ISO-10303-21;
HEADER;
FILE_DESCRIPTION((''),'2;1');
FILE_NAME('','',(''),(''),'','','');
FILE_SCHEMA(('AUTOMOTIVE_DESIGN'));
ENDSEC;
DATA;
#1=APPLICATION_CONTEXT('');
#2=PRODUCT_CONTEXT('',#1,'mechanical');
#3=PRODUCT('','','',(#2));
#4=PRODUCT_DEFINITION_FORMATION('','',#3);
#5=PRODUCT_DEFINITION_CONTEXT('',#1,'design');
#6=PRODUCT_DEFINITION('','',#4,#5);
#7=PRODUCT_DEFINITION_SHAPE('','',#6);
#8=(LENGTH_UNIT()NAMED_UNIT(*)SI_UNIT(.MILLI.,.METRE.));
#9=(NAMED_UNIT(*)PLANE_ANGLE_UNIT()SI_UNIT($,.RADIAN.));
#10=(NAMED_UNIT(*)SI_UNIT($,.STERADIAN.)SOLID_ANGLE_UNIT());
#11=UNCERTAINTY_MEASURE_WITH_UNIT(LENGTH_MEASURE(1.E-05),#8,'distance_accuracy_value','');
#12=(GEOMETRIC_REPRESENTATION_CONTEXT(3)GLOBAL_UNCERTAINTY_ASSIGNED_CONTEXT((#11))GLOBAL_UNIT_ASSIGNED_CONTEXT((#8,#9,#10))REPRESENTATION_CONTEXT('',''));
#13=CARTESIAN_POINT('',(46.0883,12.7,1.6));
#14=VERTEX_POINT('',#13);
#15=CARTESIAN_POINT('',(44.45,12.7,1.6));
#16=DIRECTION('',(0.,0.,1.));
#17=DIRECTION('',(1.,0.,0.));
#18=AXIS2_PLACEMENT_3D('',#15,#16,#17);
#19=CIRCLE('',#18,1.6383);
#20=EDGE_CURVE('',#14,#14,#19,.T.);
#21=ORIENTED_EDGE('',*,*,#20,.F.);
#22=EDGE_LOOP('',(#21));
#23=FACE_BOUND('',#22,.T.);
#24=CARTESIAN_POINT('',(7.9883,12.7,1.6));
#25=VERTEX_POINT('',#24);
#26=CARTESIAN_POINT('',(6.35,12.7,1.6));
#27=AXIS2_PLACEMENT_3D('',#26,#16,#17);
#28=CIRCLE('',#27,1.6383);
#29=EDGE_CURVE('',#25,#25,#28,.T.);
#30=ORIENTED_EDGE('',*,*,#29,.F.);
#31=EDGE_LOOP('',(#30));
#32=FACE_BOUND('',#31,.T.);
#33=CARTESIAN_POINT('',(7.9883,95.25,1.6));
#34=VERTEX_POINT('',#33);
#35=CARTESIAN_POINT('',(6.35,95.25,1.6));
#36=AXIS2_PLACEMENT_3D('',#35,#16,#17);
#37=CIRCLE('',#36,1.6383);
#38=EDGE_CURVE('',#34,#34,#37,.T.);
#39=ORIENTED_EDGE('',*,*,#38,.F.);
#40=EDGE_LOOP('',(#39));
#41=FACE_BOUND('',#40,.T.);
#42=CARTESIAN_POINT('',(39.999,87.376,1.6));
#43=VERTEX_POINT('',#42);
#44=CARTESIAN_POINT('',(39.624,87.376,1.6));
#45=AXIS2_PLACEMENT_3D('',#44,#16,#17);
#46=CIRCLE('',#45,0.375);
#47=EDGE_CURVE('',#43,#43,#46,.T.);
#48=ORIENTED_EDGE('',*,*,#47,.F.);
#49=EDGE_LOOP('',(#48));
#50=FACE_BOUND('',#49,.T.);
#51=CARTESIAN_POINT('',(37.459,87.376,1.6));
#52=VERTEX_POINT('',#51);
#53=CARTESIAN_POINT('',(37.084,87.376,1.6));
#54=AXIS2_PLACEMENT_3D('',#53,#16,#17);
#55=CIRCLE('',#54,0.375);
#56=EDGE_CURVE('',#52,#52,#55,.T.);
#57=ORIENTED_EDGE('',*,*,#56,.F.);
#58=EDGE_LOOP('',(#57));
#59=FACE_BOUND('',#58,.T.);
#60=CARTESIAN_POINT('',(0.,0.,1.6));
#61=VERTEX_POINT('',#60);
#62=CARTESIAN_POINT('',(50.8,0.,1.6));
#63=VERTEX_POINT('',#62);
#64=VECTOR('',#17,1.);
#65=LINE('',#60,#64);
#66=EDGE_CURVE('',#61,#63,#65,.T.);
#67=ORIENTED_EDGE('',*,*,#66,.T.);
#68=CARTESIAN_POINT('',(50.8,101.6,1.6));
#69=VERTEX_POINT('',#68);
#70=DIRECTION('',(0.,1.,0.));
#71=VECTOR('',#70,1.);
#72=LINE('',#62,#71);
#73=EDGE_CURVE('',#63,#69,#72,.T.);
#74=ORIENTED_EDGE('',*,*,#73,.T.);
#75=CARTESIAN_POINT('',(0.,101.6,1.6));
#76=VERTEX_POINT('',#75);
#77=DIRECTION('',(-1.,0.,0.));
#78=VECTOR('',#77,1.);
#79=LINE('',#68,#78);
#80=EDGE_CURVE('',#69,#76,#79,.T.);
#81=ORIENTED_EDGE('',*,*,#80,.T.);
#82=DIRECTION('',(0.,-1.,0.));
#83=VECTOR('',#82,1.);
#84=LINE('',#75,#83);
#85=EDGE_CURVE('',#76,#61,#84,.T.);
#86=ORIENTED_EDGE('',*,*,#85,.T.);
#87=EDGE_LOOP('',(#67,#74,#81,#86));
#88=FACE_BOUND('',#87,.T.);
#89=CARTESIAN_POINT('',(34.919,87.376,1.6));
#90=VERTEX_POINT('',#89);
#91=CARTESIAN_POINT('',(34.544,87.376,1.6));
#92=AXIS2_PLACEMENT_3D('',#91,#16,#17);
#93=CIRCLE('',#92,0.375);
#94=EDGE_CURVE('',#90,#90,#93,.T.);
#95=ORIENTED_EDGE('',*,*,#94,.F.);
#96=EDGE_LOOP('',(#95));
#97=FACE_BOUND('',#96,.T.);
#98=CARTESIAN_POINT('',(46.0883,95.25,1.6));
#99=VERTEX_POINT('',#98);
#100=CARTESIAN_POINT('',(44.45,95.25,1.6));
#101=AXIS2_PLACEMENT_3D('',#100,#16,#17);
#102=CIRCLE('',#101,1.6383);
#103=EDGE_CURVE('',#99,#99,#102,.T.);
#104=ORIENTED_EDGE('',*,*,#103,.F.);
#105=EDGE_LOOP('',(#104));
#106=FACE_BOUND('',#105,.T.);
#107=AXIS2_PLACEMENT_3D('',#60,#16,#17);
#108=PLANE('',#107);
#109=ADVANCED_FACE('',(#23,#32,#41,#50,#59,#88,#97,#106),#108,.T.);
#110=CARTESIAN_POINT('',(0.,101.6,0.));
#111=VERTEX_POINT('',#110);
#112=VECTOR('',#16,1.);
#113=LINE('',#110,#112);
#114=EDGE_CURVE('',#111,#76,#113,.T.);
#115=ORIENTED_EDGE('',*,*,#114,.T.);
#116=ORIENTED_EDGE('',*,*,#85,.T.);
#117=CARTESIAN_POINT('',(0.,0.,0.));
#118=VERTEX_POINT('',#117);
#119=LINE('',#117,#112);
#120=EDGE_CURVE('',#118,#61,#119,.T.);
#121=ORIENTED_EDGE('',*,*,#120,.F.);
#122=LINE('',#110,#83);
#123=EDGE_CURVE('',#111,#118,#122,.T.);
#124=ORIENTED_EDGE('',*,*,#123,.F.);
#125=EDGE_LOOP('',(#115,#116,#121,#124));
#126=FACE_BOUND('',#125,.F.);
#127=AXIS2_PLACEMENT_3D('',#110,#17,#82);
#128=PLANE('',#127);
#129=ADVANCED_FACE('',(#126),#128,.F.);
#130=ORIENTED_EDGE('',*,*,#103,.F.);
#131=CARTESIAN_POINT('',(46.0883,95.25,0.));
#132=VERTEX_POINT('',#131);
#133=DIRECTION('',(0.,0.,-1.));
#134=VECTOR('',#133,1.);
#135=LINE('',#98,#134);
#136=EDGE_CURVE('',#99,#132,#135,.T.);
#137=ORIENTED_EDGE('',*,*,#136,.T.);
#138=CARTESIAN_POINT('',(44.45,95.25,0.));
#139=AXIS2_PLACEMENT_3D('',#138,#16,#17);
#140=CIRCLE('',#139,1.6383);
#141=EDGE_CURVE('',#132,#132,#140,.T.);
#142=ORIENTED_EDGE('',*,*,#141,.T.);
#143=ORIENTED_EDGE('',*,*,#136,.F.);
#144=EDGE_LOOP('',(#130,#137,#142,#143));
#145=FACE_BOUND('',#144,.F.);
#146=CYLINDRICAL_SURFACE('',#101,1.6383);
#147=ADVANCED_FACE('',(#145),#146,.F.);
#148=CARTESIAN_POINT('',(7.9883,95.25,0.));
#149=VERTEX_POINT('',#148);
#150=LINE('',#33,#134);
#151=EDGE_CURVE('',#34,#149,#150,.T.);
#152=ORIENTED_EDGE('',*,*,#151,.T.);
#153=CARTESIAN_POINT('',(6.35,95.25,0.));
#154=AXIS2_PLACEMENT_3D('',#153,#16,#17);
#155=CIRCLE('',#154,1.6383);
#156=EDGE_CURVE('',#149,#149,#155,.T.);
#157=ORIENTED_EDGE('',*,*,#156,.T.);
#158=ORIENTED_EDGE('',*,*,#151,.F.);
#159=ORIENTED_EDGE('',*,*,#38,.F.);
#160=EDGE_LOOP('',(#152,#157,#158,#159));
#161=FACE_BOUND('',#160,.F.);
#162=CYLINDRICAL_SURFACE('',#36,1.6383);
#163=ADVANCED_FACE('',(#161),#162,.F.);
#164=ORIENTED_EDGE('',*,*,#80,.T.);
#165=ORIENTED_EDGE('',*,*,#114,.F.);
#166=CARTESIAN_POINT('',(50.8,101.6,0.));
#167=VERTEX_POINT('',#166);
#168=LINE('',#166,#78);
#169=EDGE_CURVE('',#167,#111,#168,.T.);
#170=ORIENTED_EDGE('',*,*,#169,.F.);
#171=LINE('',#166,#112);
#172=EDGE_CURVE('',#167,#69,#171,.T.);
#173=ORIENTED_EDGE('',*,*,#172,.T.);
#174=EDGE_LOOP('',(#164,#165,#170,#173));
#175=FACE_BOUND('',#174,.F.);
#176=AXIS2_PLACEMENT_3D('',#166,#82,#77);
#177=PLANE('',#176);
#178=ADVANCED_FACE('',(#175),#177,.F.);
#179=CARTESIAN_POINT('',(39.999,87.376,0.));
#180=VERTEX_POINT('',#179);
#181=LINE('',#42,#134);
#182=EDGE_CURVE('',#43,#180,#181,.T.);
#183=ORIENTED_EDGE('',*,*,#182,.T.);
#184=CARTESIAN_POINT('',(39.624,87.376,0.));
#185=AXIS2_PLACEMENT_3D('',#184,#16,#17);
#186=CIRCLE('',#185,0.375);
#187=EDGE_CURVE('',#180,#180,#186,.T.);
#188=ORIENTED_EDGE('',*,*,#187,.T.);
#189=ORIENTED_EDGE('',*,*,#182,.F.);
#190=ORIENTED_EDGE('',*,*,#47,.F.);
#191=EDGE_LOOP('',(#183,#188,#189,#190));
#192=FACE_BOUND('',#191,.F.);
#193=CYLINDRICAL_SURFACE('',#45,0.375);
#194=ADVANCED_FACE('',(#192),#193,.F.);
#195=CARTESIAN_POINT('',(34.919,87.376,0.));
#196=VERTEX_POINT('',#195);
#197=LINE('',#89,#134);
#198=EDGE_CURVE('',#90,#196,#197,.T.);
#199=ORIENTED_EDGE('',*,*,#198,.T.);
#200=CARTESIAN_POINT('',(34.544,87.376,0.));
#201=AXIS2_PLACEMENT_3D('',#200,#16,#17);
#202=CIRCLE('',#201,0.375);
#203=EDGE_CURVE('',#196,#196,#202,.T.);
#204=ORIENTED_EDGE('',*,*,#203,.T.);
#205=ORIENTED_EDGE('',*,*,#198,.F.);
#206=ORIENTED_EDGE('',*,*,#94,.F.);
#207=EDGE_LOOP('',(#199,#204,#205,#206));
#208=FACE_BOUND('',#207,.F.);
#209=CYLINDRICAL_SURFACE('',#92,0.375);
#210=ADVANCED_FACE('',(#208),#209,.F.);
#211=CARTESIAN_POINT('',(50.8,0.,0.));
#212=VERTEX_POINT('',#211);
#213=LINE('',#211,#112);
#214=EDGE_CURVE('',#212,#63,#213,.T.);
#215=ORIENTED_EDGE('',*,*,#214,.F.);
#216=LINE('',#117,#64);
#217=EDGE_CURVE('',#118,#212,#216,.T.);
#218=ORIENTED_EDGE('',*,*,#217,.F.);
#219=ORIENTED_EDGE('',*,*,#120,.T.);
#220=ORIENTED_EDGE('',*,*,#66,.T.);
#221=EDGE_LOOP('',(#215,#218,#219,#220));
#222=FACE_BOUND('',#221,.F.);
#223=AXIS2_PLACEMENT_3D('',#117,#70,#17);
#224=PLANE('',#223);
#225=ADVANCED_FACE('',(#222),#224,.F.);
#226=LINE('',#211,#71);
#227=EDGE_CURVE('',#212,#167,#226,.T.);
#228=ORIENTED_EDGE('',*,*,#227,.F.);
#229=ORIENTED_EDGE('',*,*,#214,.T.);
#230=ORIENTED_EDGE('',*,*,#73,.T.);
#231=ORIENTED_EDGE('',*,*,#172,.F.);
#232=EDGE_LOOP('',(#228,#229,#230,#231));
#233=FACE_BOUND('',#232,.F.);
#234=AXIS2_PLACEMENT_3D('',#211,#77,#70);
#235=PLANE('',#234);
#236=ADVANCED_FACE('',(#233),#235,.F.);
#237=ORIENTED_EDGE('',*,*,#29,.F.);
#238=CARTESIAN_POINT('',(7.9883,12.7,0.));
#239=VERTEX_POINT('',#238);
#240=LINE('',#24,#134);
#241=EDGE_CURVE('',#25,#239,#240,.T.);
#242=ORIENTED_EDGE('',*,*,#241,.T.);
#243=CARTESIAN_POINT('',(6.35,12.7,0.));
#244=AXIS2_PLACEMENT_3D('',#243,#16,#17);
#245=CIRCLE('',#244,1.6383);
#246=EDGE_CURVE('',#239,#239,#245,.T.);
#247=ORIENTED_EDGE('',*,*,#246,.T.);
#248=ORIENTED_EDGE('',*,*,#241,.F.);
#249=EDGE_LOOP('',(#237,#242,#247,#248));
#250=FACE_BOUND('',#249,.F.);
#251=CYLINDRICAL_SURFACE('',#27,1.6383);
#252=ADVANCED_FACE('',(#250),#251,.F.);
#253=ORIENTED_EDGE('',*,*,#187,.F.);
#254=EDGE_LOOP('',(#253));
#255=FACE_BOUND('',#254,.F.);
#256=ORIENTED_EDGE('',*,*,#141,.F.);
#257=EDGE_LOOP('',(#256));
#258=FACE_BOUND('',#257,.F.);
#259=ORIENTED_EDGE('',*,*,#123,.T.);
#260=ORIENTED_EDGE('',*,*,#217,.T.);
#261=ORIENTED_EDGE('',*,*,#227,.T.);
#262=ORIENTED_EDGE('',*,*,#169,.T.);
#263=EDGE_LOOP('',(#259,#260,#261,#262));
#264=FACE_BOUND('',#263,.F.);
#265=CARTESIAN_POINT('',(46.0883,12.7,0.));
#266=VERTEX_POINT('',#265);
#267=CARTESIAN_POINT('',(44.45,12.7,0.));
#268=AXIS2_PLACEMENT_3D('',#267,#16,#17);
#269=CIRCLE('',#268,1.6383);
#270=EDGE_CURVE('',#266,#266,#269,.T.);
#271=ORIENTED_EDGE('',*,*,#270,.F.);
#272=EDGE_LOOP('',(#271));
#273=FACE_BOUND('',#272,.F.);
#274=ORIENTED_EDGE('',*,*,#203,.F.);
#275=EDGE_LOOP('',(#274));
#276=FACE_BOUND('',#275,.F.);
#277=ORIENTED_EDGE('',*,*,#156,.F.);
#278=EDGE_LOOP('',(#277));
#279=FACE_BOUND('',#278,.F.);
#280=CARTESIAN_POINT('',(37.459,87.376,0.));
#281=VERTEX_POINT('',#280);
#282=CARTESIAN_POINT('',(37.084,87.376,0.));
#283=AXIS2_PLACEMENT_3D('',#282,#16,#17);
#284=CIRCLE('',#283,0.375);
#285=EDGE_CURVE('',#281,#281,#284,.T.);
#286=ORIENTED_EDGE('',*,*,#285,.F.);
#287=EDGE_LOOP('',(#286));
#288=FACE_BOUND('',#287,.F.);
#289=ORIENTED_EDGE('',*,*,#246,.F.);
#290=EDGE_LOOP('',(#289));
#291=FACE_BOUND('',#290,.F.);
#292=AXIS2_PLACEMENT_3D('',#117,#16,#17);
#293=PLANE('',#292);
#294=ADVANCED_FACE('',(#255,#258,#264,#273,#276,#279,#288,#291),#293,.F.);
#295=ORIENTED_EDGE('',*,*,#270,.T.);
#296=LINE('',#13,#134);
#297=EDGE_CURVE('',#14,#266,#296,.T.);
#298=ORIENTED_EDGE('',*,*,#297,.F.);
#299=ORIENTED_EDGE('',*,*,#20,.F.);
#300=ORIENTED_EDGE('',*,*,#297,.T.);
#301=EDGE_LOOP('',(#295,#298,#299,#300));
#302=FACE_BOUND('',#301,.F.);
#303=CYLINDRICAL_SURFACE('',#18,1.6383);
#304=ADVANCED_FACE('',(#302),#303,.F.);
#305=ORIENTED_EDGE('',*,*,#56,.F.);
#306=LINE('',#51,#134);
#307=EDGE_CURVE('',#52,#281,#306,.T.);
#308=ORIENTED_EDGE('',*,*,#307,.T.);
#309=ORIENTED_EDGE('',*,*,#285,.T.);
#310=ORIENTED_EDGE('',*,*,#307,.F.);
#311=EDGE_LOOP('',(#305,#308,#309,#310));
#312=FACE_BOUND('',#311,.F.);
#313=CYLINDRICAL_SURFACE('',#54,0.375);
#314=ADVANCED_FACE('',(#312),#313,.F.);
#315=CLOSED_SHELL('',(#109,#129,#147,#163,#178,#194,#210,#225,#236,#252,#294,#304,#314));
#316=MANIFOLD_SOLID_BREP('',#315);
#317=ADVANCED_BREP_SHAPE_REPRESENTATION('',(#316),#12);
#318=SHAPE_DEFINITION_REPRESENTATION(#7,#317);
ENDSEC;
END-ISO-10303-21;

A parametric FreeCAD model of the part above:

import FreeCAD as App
import Part
import Sketcher
from FreeCAD import Vector
Q = App.Units.Quantity


def add_polygon(sketch, points):
    """Adds a closed chain of lines whose ends are joined by coincident constraints."""
    first, n = sketch.GeometryCount, len(points)
    for a, b in zip(points, points[1:] + points[:1]):
        sketch.addGeometry(Part.LineSegment(App.Vector(*a, 0), App.Vector(*b, 0)), False)
    for i in range(n):
        sketch.addConstraint(Sketcher.Constraint("Coincident", first + i, 2, first + (i + 1) % n, 1))

doc = App.newDocument("Part")
body = doc.addObject("PartDesign::Body", "Body")

# Sketch on XY plane
sketch1 = body.newObject("Sketcher::SketchObject", "Sketch")
sketch1.AttachmentSupport = (doc.getObject("XY_Plane"), [""])
sketch1.MapMode = "FlatFace"
add_polygon(sketch1, [(0, 102), (0, 0), (51, 0), (51, 102)])  # lines 0-3
sketch1.addConstraint([
    Sketcher.Constraint("Vertical", 0),
    Sketcher.Constraint("Horizontal", 1),
    Sketcher.Constraint("Vertical", 2),
    Sketcher.Constraint("Horizontal", 3),
    Sketcher.Constraint("Coincident", 0, 2, -1, 1),
    Sketcher.Constraint("DistanceX", 1, 1, 1, 2, Q("2 in")),
    Sketcher.Constraint("DistanceY", 0, 2, 0, 1, Q("4 in")),
])
pad1 = body.newObject("PartDesign::Pad", "Pad")
pad1.Profile = sketch1
pad1.Length = Q("0.0629921 in")

# Sketch on XY plane
sketch2 = body.newObject("Sketcher::SketchObject", "Sketch001")
sketch2.AttachmentSupport = (doc.getObject("XY_Plane"), [""])
sketch2.MapMode = "FlatFace"
sketch2.AttachmentOffset = App.Placement(Vector(0, 0, 0.0629921 * 25.4), App.Rotation())
sketch2.addGeometry([
    Part.Circle(Vector(6.35, 12.7, 0), Vector(0, 0, 1), 1.64),  # 0
    Part.Circle(Vector(6.35, 95.25, 0), Vector(0, 0, 1), 1.64),  # 1
    Part.Circle(Vector(44.45, 12.7, 0), Vector(0, 0, 1), 1.64),  # 2
    Part.Circle(Vector(44.45, 95.25, 0), Vector(0, 0, 1), 1.64),  # 3
    Part.Circle(Vector(37.08, 87.38, 0), Vector(0, 0, 1), 0.38),  # 4
    Part.Circle(Vector(39.62, 87.38, 0), Vector(0, 0, 1), 0.38),  # 5
    Part.Circle(Vector(34.54, 87.38, 0), Vector(0, 0, 1), 0.38),  # 6
], False)
sketch2.addConstraint([
    Sketcher.Constraint("Equal", 0, 1),
    Sketcher.Constraint("Equal", 1, 2),
    Sketcher.Constraint("Equal", 2, 3),
    Sketcher.Constraint("Equal", 4, 5),
    Sketcher.Constraint("Equal", 5, 6),
    Sketcher.Constraint("Horizontal", 0, 3, 2, 3),
    Sketcher.Constraint("Horizontal", 1, 3, 3, 3),
    Sketcher.Constraint("Horizontal", 4, 3, 5, 3),
    Sketcher.Constraint("Horizontal", 5, 3, 6, 3),
    Sketcher.Constraint("Vertical", 0, 3, 1, 3),
    Sketcher.Constraint("Vertical", 2, 3, 3, 3),
    Sketcher.Constraint("Diameter", 0, Q("0.129 in")),
    Sketcher.Constraint("DistanceY", -1, 1, 0, 3, Q("0.5 in")),
    Sketcher.Constraint("DistanceX", 0, 3, 2, 3, Q("1.5 in")),
    Sketcher.Constraint("DistanceX", 4, 3, 5, 3, Q("0.1 in")),
    Sketcher.Constraint("DistanceX", 6, 3, 4, 3, Q("0.1 in")),
    Sketcher.Constraint("Diameter", 4, Q("0.75 mm")),
    Sketcher.Constraint("DistanceX", -1, 1, 0, 3, Q("0.25 in")),
    Sketcher.Constraint("DistanceY", -1, 1, 4, 3, Q("3.44 in")),
    Sketcher.Constraint("DistanceY", 0, 3, 1, 3, Q("3.25 in")),
    Sketcher.Constraint("DistanceX", -1, 1, 4, 3, Q("1.46 in")),
])
pocket1 = body.newObject("PartDesign::Pocket", "Pocket")
pocket1.Profile = sketch2
pocket1.Type = "ThroughAll"

doc.recompute()
